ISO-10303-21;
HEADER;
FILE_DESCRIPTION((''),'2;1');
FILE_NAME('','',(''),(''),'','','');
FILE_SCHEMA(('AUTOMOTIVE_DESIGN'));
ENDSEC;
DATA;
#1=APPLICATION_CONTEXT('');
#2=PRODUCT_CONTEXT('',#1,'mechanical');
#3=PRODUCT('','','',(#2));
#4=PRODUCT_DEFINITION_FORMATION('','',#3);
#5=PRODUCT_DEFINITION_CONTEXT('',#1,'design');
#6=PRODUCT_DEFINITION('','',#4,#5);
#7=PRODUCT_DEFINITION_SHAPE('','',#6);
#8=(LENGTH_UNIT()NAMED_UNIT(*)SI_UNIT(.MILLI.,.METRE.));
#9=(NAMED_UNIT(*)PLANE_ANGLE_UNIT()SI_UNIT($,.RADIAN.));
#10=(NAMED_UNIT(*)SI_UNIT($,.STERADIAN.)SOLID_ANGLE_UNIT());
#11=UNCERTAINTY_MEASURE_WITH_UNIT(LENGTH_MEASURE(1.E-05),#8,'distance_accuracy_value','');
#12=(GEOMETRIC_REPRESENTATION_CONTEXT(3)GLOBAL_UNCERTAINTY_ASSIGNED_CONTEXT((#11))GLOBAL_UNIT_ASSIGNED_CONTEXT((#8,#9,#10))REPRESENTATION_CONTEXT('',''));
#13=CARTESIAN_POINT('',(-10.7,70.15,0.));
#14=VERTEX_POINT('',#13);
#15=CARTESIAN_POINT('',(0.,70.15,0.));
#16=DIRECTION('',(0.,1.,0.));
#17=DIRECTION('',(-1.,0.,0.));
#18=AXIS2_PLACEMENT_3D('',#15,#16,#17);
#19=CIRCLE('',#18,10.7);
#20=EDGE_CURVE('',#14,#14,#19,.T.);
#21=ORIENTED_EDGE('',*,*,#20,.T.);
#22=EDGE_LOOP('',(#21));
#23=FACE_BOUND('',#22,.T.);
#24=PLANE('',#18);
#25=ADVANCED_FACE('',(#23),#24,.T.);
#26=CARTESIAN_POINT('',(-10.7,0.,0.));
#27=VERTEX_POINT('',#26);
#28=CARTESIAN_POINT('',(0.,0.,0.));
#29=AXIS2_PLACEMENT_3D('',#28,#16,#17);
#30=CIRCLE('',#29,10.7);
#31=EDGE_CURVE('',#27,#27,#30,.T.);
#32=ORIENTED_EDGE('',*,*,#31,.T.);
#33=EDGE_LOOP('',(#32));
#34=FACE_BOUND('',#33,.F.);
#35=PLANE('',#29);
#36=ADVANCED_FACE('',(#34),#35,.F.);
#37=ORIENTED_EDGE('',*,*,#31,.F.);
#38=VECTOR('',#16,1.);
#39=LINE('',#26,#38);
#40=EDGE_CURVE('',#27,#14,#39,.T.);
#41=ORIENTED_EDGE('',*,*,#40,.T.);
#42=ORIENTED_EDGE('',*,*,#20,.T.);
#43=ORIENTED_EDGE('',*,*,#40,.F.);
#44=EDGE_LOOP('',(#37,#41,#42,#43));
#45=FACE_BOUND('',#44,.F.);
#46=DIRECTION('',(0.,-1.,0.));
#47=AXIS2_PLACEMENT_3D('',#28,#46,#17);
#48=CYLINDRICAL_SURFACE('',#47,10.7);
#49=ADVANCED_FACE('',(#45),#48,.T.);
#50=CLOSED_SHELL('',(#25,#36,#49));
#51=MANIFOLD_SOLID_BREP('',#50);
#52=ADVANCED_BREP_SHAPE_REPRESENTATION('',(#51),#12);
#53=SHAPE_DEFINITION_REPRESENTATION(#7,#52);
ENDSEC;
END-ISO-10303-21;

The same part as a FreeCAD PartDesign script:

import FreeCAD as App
import Part
import Sketcher
from FreeCAD import Vector
Q = App.Units.Quantity

doc = App.newDocument("Part")
body = doc.addObject("PartDesign::Body", "Body")

# Sketch on XZ plane
sketch1 = body.newObject("Sketcher::SketchObject", "Sketch")
sketch1.AttachmentSupport = (doc.getObject("XZ_Plane"), [""])
sketch1.MapMode = "FlatFace"
sketch1.addGeometry(Part.Circle(Vector(0, 0, 0), Vector(0, 0, 1), 11), False)
sketch1.addConstraint([
    Sketcher.Constraint("Coincident", 0, 3, -1, 1),
    Sketcher.Constraint("Diameter", 0, Q("21.4 mm")),
])
pad1 = body.newObject("PartDesign::Pad", "Pad")
pad1.Profile = sketch1
pad1.Length = 70.15
pad1.Reversed = True

doc.recompute()
